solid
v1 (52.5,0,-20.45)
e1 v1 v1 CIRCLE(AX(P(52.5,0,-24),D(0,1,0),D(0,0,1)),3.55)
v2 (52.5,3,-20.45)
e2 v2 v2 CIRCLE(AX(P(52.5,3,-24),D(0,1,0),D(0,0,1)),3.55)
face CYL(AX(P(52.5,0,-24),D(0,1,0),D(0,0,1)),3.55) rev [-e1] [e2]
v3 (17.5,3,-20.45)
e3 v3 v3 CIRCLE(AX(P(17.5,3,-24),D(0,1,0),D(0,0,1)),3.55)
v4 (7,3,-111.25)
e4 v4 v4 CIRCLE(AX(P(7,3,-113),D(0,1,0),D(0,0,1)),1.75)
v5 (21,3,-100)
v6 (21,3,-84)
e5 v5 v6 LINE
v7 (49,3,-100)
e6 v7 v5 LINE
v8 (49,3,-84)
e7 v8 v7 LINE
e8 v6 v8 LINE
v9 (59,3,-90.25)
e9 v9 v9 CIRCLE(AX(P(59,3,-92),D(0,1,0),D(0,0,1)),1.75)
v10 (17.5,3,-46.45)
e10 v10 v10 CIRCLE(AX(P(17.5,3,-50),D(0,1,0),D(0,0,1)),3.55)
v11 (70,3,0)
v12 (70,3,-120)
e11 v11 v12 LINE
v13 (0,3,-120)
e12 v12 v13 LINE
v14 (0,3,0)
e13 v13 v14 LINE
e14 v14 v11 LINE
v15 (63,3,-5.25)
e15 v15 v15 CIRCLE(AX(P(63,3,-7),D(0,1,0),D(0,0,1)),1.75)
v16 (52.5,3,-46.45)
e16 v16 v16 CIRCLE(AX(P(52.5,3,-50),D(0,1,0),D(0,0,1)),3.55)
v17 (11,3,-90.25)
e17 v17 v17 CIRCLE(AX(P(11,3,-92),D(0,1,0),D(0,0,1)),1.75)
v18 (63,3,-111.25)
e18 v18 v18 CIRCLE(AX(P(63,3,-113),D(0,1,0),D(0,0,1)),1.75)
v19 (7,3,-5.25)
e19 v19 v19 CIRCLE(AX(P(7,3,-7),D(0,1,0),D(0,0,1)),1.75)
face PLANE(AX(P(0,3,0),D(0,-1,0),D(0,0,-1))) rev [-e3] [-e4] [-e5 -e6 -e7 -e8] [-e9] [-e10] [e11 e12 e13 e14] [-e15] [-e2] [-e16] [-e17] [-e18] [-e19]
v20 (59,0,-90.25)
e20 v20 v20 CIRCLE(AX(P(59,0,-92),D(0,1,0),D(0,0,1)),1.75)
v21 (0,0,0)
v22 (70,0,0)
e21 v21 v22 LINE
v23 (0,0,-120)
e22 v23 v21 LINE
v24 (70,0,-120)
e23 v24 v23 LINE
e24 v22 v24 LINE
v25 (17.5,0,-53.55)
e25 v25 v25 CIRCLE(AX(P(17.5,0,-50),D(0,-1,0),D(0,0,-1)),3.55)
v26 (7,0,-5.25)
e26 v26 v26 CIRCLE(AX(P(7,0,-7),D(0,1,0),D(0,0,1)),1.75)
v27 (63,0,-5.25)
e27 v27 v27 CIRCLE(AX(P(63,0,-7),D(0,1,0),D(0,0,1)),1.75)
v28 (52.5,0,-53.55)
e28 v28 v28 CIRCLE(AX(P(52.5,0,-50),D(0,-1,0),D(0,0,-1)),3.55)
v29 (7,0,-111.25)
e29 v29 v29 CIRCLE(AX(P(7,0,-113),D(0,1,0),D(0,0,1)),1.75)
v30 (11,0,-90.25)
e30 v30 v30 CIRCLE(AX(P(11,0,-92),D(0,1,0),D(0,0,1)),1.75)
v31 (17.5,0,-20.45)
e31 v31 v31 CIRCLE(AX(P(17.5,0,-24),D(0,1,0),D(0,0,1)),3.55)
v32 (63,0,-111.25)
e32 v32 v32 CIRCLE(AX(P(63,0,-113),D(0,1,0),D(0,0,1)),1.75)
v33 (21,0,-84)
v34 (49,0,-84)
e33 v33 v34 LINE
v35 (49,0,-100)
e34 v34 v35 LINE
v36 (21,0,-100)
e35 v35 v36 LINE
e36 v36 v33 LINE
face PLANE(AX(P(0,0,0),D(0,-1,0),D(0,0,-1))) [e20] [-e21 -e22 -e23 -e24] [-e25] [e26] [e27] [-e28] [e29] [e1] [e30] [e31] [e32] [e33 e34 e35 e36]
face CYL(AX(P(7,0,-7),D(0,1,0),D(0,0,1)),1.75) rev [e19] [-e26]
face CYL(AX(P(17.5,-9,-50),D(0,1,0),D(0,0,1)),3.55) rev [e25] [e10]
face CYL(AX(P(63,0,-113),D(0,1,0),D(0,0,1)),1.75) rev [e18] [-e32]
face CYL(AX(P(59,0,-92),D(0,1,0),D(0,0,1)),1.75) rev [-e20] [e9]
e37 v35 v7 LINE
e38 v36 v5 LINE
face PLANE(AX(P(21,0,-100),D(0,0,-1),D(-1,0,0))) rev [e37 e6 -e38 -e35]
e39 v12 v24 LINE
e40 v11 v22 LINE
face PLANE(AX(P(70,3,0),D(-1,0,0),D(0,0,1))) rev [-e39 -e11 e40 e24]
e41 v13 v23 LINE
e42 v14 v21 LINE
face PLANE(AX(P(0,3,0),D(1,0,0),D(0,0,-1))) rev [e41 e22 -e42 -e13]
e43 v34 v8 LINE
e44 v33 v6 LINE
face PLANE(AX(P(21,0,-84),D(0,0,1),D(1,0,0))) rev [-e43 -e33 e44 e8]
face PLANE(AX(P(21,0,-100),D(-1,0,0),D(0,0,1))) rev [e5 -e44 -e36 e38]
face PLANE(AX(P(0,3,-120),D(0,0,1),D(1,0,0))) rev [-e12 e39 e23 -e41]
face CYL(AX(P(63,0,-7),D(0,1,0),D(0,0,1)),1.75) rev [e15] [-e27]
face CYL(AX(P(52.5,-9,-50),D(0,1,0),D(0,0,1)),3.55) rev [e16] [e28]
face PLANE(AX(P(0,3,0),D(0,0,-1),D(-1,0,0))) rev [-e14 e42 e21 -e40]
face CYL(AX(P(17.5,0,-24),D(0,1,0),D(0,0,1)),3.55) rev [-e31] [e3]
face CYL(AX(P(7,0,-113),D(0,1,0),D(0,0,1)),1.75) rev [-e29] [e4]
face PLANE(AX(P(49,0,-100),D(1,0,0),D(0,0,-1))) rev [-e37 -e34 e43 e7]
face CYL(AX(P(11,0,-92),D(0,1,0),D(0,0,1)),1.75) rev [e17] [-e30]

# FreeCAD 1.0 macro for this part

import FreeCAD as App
import Part
import Sketcher
from FreeCAD import Vector
Q = App.Units.Quantity


def add_polygon(sketch, points):
    """Adds a closed chain of lines whose ends are joined by coincident constraints."""
    first, n = sketch.GeometryCount, len(points)
    for a, b in zip(points, points[1:] + points[:1]):
        sketch.addGeometry(Part.LineSegment(App.Vector(*a, 0), App.Vector(*b, 0)), False)
    for i in range(n):
        sketch.addConstraint(Sketcher.Constraint("Coincident", first + i, 2, first + (i + 1) % n, 1))

doc = App.newDocument("Part")
body = doc.addObject("PartDesign::Body", "Body")

# Sketch on XZ plane
sketch1 = doc.addObject("Sketcher::SketchObject", "Sketch")
body.addObject(sketch1)
sketch1.AttachmentSupport = (doc.XZ_Plane, [""])
sketch1.MapMode = "FlatFace"
add_polygon(sketch1, [(0, -120), (0, 0), (70, 0), (70, -120)])  # lines 0-3
sketch1.addConstraint([
    Sketcher.Constraint("Vertical", 0),
    Sketcher.Constraint("Horizontal", 1),
    Sketcher.Constraint("Vertical", 2),
    Sketcher.Constraint("Horizontal", 3),
    Sketcher.Constraint("Coincident", 0, 2, -1, 1),
    Sketcher.Constraint("DistanceX", 1, 1, 1, 2, Q("70 mm")),
    Sketcher.Constraint("DistanceY", 0, 1, 0, 2, Q("120 mm")),
])
pad1 = doc.addObject("PartDesign::Pad", "Pad")
body.addObject(pad1)
pad1.Profile = sketch1
pad1.Length = 3
pad1.Reversed = True

# Sketch on XZ plane
sketch2 = doc.addObject("Sketcher::SketchObject", "Sketch001")
body.addObject(sketch2)
sketch2.AttachmentSupport = (doc.XZ_Plane, [""])
sketch2.MapMode = "FlatFace"
sketch2.AttachmentOffset = App.Placement(Vector(0, 0, -3), App.Rotation())
sketch2.addGeometry(Part.Circle(Vector(11, -92, 0), Vector(0, 0, 1), 1.8), False)  # 0
sketch2.addGeometry(Part.Circle(Vector(59, -92, 0), Vector(0, 0, 1), 1.8), False)  # 1
sketch2.addGeometry(Part.Circle(Vector(52.5, -24, 0), Vector(0, 0, 1), 3.5), False)  # 2
sketch2.addGeometry(Part.Circle(Vector(17.5, -24, 0), Vector(0, 0, 1), 3.5), False)  # 3
sketch2.addGeometry(Part.Circle(Vector(7, -113, 0), Vector(0, 0, 1), 1.8), False)  # 4
sketch2.addGeometry(Part.Circle(Vector(63, -113, 0), Vector(0, 0, 1), 1.8), False)  # 5
sketch2.addGeometry(Part.Circle(Vector(63, -7, 0), Vector(0, 0, 1), 1.8), False)  # 6
sketch2.addGeometry(Part.Circle(Vector(7, -7, 0), Vector(0, 0, 1), 1.8), False)  # 7
add_polygon(sketch2, [(21, -100), (21, -84), (49, -84), (49, -100)])  # lines 8-11
sketch2.addConstraint([
    Sketcher.Constraint("Vertical", 8),
    Sketcher.Constraint("Horizontal", 9),
    Sketcher.Constraint("Vertical", 10),
    Sketcher.Constraint("Horizontal", 11),
    Sketcher.Constraint("Equal", 0, 1),
    Sketcher.Constraint("Equal", 2, 3),
    Sketcher.Constraint("Equal", 1, 4),
    Sketcher.Constraint("Equal", 4, 5),
    Sketcher.Constraint("Equal", 5, 6),
    Sketcher.Constraint("Equal", 6, 7),
    Sketcher.Constraint("Horizontal", 0, 3, 1, 3),
    Sketcher.Constraint("Horizontal", 2, 3, 3, 3),
    Sketcher.Constraint("Horizontal", 4, 3, 5, 3),
    Sketcher.Constraint("Horizontal", 6, 3, 7, 3),
    Sketcher.Constraint("Vertical", 5, 3, 6, 3),
    Sketcher.Constraint("Vertical", 4, 3, 7, 3),
    Sketcher.Constraint("Diameter", 0, Q("3.5 mm")),
    Sketcher.Constraint("Diameter", 2, Q("7.1 mm")),
    Sketcher.Constraint("DistanceX", 9, 1, 9, 2, Q("28 mm")),
    Sketcher.Constraint("DistanceY", 8, 1, 8, 2, Q("16 mm")),
    Sketcher.Constraint("DistanceX", -1, 1, 0, 3, Q("11 mm")),
    Sketcher.Constraint("DistanceY", 0, 3, -1, 1, Q("92 mm")),
    Sketcher.Constraint("DistanceX", -1, 1, 1, 3, Q("59 mm")),
    Sketcher.Constraint("DistanceY", 2, 3, -1, 1, Q("24 mm")),
    Sketcher.Constraint("DistanceX", -1, 1, 4, 3, Q("7 mm")),
    Sketcher.Constraint("DistanceY", 4, 3, -1, 1, Q("113 mm")),
    Sketcher.Constraint("DistanceX", -1, 1, 5, 3, Q("63 mm")),
    Sketcher.Constraint("DistanceY", 6, 3, -1, 1, Q("7 mm")),
    Sketcher.Constraint("DistanceX", -1, 1, 8, 2, Q("21 mm")),
    Sketcher.Constraint("DistanceY", 8, 2, -1, 1, Q("84 mm")),
    Sketcher.Constraint("DistanceX", 3, 3, 2, 3, Q("35 mm")),
    Sketcher.Constraint("DistanceX", -1, 1, 2, 3, Q("52.5 mm")),
])
pocket1 = doc.addObject("PartDesign::Pocket", "Pocket")
body.addObject(pocket1)
pocket1.Profile = sketch2
pocket1.Length = 3
pocket1.Reversed = True

# Sketch on XZ plane
sketch3 = doc.addObject("Sketcher::SketchObject", "Sketch002")
body.addObject(sketch3)
sketch3.AttachmentSupport = (doc.XZ_Plane, [""])
sketch3.MapMode = "FlatFace"
sketch3.AttachmentOffset = App.Placement(Vector(0, 0, -3), App.Rotation())
sketch3.addGeometry([
    Part.Circle(Vector(17.5, -50, 0), Vector(0, 0, 1), 3.5),
    Part.Circle(Vector(52.5, -50, 0), Vector(0, 0, 1), 3.5),
], False)
sketch3.addConstraint([
    Sketcher.Constraint("Equal", 0, 1),
    Sketcher.Constraint("Horizontal", 0, 3, 1, 3),
    Sketcher.Constraint("Diameter", 0, Q("7.1 mm")),
    Sketcher.Constraint("DistanceY", 0, 3, -1, 1, Q("50 mm")),
    Sketcher.Constraint("DistanceX", 0, 3, 1, 3, Q("35 mm")),
    Sketcher.Constraint("DistanceX", -1, 1, 0, 3, Q("17.5 mm")),
])
pocket2 = doc.addObject("PartDesign::Pocket", "Pocket001")
body.addObject(pocket2)
pocket2.Profile = sketch3
pocket2.Length = 12
pocket2.Reversed = True

doc.recompute()
